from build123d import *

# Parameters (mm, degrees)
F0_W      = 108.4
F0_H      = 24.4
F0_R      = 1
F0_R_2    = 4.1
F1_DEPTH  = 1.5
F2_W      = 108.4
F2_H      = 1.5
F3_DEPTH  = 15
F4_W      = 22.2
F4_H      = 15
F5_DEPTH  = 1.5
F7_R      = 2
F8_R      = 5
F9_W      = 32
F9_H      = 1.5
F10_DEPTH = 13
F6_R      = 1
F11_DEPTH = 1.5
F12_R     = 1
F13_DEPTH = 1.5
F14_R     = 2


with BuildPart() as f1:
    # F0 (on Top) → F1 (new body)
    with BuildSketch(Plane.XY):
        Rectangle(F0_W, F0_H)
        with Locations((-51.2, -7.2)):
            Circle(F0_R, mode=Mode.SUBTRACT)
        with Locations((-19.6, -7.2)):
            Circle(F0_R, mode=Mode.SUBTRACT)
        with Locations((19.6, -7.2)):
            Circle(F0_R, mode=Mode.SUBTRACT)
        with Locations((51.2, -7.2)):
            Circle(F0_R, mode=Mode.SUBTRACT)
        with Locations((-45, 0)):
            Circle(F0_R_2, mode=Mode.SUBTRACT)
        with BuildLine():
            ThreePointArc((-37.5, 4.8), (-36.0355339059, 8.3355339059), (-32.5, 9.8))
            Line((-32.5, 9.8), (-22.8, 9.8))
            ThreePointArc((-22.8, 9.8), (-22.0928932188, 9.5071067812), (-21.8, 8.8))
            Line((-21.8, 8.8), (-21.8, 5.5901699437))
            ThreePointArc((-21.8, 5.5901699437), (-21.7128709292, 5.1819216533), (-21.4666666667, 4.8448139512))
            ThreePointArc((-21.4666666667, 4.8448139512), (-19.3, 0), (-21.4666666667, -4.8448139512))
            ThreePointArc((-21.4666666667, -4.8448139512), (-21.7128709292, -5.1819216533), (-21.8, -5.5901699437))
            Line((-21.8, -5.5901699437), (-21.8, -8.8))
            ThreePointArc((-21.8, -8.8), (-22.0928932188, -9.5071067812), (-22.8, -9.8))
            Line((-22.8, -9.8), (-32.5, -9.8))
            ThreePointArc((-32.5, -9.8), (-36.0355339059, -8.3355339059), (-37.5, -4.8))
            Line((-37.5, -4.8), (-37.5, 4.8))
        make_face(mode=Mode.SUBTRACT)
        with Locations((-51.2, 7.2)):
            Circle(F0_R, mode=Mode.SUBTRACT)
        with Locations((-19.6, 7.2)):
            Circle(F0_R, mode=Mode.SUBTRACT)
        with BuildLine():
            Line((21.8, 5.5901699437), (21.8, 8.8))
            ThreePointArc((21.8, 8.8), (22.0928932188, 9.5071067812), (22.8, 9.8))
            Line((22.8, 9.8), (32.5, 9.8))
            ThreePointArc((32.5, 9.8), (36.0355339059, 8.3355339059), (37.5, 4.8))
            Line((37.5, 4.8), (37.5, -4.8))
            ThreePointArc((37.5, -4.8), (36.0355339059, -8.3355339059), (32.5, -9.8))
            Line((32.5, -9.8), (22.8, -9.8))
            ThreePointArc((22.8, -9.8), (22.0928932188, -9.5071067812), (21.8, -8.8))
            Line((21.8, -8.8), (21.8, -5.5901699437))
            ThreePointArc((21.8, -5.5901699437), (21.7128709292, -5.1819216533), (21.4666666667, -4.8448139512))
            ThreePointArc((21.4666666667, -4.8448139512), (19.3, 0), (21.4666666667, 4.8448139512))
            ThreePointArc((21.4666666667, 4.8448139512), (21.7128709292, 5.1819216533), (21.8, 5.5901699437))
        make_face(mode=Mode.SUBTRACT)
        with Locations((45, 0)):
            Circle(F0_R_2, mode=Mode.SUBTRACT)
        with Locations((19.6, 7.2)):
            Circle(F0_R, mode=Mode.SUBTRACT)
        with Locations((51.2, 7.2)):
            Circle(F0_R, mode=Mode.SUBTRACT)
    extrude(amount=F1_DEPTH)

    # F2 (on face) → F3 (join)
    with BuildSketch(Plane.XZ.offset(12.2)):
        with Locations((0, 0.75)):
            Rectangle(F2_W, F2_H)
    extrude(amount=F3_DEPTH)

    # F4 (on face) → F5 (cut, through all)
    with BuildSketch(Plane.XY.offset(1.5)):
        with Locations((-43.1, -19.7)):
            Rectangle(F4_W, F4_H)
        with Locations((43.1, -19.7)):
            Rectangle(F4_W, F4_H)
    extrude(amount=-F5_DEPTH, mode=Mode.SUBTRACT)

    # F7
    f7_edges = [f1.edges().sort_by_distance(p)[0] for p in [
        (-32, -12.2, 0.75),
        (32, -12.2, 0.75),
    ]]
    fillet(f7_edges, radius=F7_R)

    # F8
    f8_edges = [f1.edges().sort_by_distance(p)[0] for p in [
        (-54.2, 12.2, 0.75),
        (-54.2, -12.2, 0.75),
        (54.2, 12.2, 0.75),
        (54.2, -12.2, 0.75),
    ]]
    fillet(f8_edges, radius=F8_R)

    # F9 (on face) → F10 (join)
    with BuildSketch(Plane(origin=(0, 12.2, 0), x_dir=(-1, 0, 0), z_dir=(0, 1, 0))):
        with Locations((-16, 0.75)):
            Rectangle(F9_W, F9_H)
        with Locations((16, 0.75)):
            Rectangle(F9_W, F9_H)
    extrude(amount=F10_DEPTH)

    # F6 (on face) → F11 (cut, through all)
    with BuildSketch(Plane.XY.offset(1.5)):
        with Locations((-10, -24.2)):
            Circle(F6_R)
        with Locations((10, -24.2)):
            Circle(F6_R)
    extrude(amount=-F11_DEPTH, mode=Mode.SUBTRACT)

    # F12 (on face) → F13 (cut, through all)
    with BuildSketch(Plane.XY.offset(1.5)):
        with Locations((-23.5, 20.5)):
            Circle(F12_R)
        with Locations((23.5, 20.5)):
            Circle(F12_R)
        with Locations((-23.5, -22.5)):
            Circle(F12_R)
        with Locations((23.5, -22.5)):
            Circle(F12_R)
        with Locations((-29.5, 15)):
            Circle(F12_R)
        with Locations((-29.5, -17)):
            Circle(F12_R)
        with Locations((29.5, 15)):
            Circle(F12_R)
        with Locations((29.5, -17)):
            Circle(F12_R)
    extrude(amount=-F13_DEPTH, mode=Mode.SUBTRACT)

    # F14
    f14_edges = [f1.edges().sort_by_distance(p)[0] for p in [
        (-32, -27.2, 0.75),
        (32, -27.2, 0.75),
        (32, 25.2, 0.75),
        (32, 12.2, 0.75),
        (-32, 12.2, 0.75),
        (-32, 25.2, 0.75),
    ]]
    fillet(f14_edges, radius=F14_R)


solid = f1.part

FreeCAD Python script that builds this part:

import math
import FreeCAD as App
import Part
import Sketcher


def edges_at(feature, points):
    """Names of the edges that pass closest to the given points."""
    edges = feature.Shape.Edges
    near = lambda p: min(range(len(edges)), key=lambda i: edges[i].distToShape(Part.Vertex(*p))[0])
    return sorted({f"Edge{near(p) + 1}" for p in points})


def add_polygon(sketch, points):
    """Adds a closed chain of lines whose ends are joined by coincident constraints."""
    first, n = sketch.GeometryCount, len(points)
    for a, b in zip(points, points[1:] + points[:1]):
        sketch.addGeometry(Part.LineSegment(App.Vector(*a, 0), App.Vector(*b, 0)), False)
    for i in range(n):
        sketch.addConstraint(Sketcher.Constraint("Coincident", first + i, 2, first + (i + 1) % n, 1))

doc = App.newDocument("Part")
body = doc.addObject("PartDesign::Body", "Body")

# Sketch on XY plane
sketch1 = body.newObject("Sketcher::SketchObject", "Sketch")
sketch1.AttachmentSupport = (doc.getObject("XY_Plane"), [""])
sketch1.MapMode = "FlatFace"
add_polygon(sketch1, [(-54.2, 12.2), (-54.2, -12.2), (54.2, -12.2), (54.2, 12.2)])  # lines 0-3
sketch1.addGeometry(Part.Circle(App.Vector(-51.2, -7.2, 0), App.Vector(0, 0, 1), 1), False)  # 4
sketch1.addGeometry(Part.Circle(App.Vector(-19.6, -7.2, 0), App.Vector(0, 0, 1), 1), False)  # 5
sketch1.addGeometry(Part.Circle(App.Vector(19.6, -7.2, 0), App.Vector(0, 0, 1), 1), False)  # 6
sketch1.addGeometry(Part.Circle(App.Vector(51.2, -7.2, 0), App.Vector(0, 0, 1), 1), False)  # 7
sketch1.addGeometry(Part.ArcOfCircle(Part.Circle(App.Vector(20.8, 5.59017, 0), App.Vector(0, 0, 1), 1), math.radians(-48.189685), math.radians(0)), False)  # 8
sketch1.addGeometry(Part.LineSegment(App.Vector(21.8, 5.59017, 0), App.Vector(21.8, 8.8, 0)), False)  # 9
sketch1.addGeometry(Part.ArcOfCircle(Part.Circle(App.Vector(22.8, 8.8, 0), App.Vector(0, 0, 1), 1), math.radians(90), math.radians(180)), False)  # 10
sketch1.addGeometry(Part.LineSegment(App.Vector(22.8, 9.8, 0), App.Vector(32.5, 9.8, 0)), False)  # 11
sketch1.addGeometry(Part.ArcOfCircle(Part.Circle(App.Vector(32.5, 4.8, 0), App.Vector(0, 0, 1), 5), math.radians(0), math.radians(90)), False)  # 12
sketch1.addGeometry(Part.LineSegment(App.Vector(37.5, 4.8, 0), App.Vector(37.5, -4.8, 0)), False)  # 13
sketch1.addGeometry(Part.ArcOfCircle(Part.Circle(App.Vector(32.5, -4.8, 0), App.Vector(0, 0, 1), 5), math.radians(-90), math.radians(0)), False)  # 14
sketch1.addGeometry(Part.LineSegment(App.Vector(32.5, -9.8, 0), App.Vector(22.8, -9.8, 0)), False)  # 15
sketch1.addGeometry(Part.ArcOfCircle(Part.Circle(App.Vector(22.8, -8.8, 0), App.Vector(0, 0, 1), 1), math.radians(180), math.radians(270)), False)  # 16
sketch1.addGeometry(Part.LineSegment(App.Vector(21.8, -8.8, 0), App.Vector(21.8, -5.59017, 0)), False)  # 17
sketch1.addGeometry(Part.ArcOfCircle(Part.Circle(App.Vector(20.8, -5.59017, 0), App.Vector(0, 0, 1), 1), math.radians(0), math.radians(48.189685)), False)  # 18
sketch1.addGeometry(Part.ArcOfCircle(Part.Circle(App.Vector(25.8, 0, 0), App.Vector(0, 0, 1), 6.5), math.radians(131.810315), math.radians(228.189685)), False)  # 19
sketch1.addGeometry(Part.Circle(App.Vector(-45, 0, 0), App.Vector(0, 0, 1), 4.1), False)  # 20
sketch1.addGeometry(Part.LineSegment(App.Vector(-37.5, -4.8, 0), App.Vector(-37.5, 4.8, 0)), False)  # 21
sketch1.addGeometry(Part.ArcOfCircle(Part.Circle(App.Vector(-32.5, 4.8, 0), App.Vector(0, 0, 1), 5), math.radians(90), math.radians(180)), False)  # 22
sketch1.addGeometry(Part.LineSegment(App.Vector(-32.5, 9.8, 0), App.Vector(-22.8, 9.8, 0)), False)  # 23
sketch1.addGeometry(Part.ArcOfCircle(Part.Circle(App.Vector(-22.8, 8.8, 0), App.Vector(0, 0, 1), 1), math.radians(0), math.radians(90)), False)  # 24
sketch1.addGeometry(Part.LineSegment(App.Vector(-21.8, 8.8, 0), App.Vector(-21.8, 5.59017, 0)), False)  # 25
sketch1.addGeometry(Part.ArcOfCircle(Part.Circle(App.Vector(-20.8, 5.59017, 0), App.Vector(0, 0, 1), 1), math.radians(180), math.radians(228.189685)), False)  # 26
sketch1.addGeometry(Part.ArcOfCircle(Part.Circle(App.Vector(-25.8, 0, 0), App.Vector(0, 0, 1), 6.5), math.radians(-48.189685), math.radians(48.189685)), False)  # 27
sketch1.addGeometry(Part.ArcOfCircle(Part.Circle(App.Vector(-20.8, -5.59017, 0), App.Vector(0, 0, 1), 1), math.radians(131.810315), math.radians(180)), False)  # 28
sketch1.addGeometry(Part.LineSegment(App.Vector(-21.8, -5.59017, 0), App.Vector(-21.8, -8.8, 0)), False)  # 29
sketch1.addGeometry(Part.ArcOfCircle(Part.Circle(App.Vector(-22.8, -8.8, 0), App.Vector(0, 0, 1), 1), math.radians(-90), math.radians(0)), False)  # 30
sketch1.addGeometry(Part.LineSegment(App.Vector(-22.8, -9.8, 0), App.Vector(-32.5, -9.8, 0)), False)  # 31
sketch1.addGeometry(Part.ArcOfCircle(Part.Circle(App.Vector(-32.5, -4.8, 0), App.Vector(0, 0, 1), 5), math.radians(180), math.radians(270)), False)  # 32
sketch1.addGeometry(Part.Circle(App.Vector(-51.2, 7.2, 0), App.Vector(0, 0, 1), 1), False)  # 33
sketch1.addGeometry(Part.Circle(App.Vector(-19.6, 7.2, 0), App.Vector(0, 0, 1), 1), False)  # 34
sketch1.addGeometry(Part.Circle(App.Vector(45, 0, 0), App.Vector(0, 0, 1), 4.1), False)  # 35
sketch1.addGeometry(Part.Circle(App.Vector(19.6, 7.2, 0), App.Vector(0, 0, 1), 1), False)  # 36
sketch1.addGeometry(Part.Circle(App.Vector(51.2, 7.2, 0), App.Vector(0, 0, 1), 1), False)  # 37
sketch1.addConstraint([
    Sketcher.Constraint("Tangent", 8, 2, 9, 1),
    Sketcher.Constraint("Tangent", 9, 2, 10, 2),
    Sketcher.Constraint("Tangent", 10, 1, 11, 1),
    Sketcher.Constraint("Tangent", 11, 2, 12, 2),
    Sketcher.Constraint("Tangent", 12, 1, 13, 1),
    Sketcher.Constraint("Tangent", 13, 2, 14, 2),
    Sketcher.Constraint("Tangent", 14, 1, 15, 1),
    Sketcher.Constraint("Tangent", 15, 2, 16, 2),
    Sketcher.Constraint("Tangent", 16, 1, 17, 1),
    Sketcher.Constraint("Tangent", 17, 2, 18, 1),
    Sketcher.Constraint("Tangent", 18, 2, 19, 2),
    Sketcher.Constraint("Tangent", 19, 1, 8, 1),
    Sketcher.Constraint("Tangent", 21, 2, 22, 2),
    Sketcher.Constraint("Tangent", 22, 1, 23, 1),
    Sketcher.Constraint("Tangent", 23, 2, 24, 2),
    Sketcher.Constraint("Tangent", 24, 1, 25, 1),
    Sketcher.Constraint("Tangent", 25, 2, 26, 1),
    Sketcher.Constraint("Tangent", 26, 2, 27, 2),
    Sketcher.Constraint("Tangent", 27, 1, 28, 1),
    Sketcher.Constraint("Tangent", 28, 2, 29, 1),
    Sketcher.Constraint("Tangent", 29, 2, 30, 2),
    Sketcher.Constraint("Tangent", 30, 1, 31, 1),
    Sketcher.Constraint("Tangent", 31, 2, 32, 2),
    Sketcher.Constraint("Tangent", 32, 1, 21, 1),
    Sketcher.Constraint("Vertical", 0),
    Sketcher.Constraint("Horizontal", 1),
    Sketcher.Constraint("Vertical", 2),
    Sketcher.Constraint("Horizontal", 3),
    Sketcher.Constraint("Vertical", 9),
    Sketcher.Constraint("Horizontal", 11),
    Sketcher.Constraint("Vertical", 13),
    Sketcher.Constraint("Horizontal", 15),
    Sketcher.Constraint("Vertical", 17),
    Sketcher.Constraint("Vertical", 21),
    Sketcher.Constraint("Horizontal", 23),
    Sketcher.Constraint("Vertical", 25),
    Sketcher.Constraint("Vertical", 29),
    Sketcher.Constraint("Horizontal", 31),
    Sketcher.Constraint("Equal", 4, 5),
    Sketcher.Constraint("Equal", 5, 6),
    Sketcher.Constraint("Equal", 6, 7),
    Sketcher.Constraint("Equal", 7, 8),
    Sketcher.Constraint("Equal", 8, 10),
    Sketcher.Constraint("Equal", 12, 14),
    Sketcher.Constraint("Equal", 10, 16),
    Sketcher.Constraint("Equal", 16, 18),
    Sketcher.Constraint("Equal", 14, 22),
    Sketcher.Constraint("Equal", 18, 24),
    Sketcher.Constraint("Equal", 24, 26),
    Sketcher.Constraint("Equal", 19, 27),
    Sketcher.Constraint("Equal", 26, 28),
    Sketcher.Constraint("Equal", 28, 30),
    Sketcher.Constraint("Equal", 22, 32),
    Sketcher.Constraint("Equal", 30, 33),
    Sketcher.Constraint("Equal", 33, 34),
    Sketcher.Constraint("Equal", 20, 35),
    Sketcher.Constraint("Equal", 34, 36),
    Sketcher.Constraint("Equal", 36, 37),
    Sketcher.Constraint("Symmetric", 14, 3, 22, 3, -1, 1),
    Sketcher.Constraint("Symmetric", 18, 3, 26, 3, -1, 1),
    Sketcher.Constraint("Symmetric", 8, 3, 28, 3, -1, 1),
    Sketcher.Constraint("Symmetric", 7, 3, 33, 3, -1, 1),
    Sketcher.Constraint("Symmetric", 6, 3, 34, 3, -1, 1),
    Sketcher.Constraint("Symmetric", 20, 3, 35, 3, -1, 1),
    Sketcher.Constraint("Symmetric", 5, 3, 36, 3, -1, 1),
    Sketcher.Constraint("Symmetric", 4, 3, 37, 3, -1, 1),
    Sketcher.Constraint("Symmetric", 0, 2, 2, 2, -1, 1),
    Sketcher.Constraint("Symmetric", 5, 3, 6, 3, -2),
    Sketcher.Constraint("Symmetric", 4, 3, 7, 3, -2),
    Sketcher.Constraint("Symmetric", 10, 3, 24, 3, -2),
    Sketcher.Constraint("PointOnObject", 19, 3, -1),
    Sketcher.Constraint("PointOnObject", 20, 3, -1),
    Sketcher.Constraint("Horizontal", 4, 3, 5, 3),
    Sketcher.Constraint("Horizontal", 16, 3, 30, 3),
    Sketcher.Constraint("Diameter", 4, 2.0),
    Sketcher.Constraint("Radius", 12, 5.0),
    Sketcher.Constraint("Diameter", 20, 8.2),
    Sketcher.Constraint("Radius", 19, 6.5),
    Sketcher.Constraint("DistanceX", 1, 1, 1, 2, 108.4),
    Sketcher.Constraint("DistanceX", 11, 1, 11, 2, 9.7),
    Sketcher.Constraint("DistanceY", 0, 2, 0, 1, 24.4),
    Sketcher.Constraint("DistanceY", 13, 2, 13, 1, 9.6),
    Sketcher.Constraint("DistanceX", 20, 3, -1, 1, 45.0),
    Sketcher.Constraint("DistanceX", 4, 3, 8, 3, 72.0),
    Sketcher.Constraint("DistanceY", 6, 3, 10, 3, 16.0),
    Sketcher.Constraint("DistanceX", 8, 3, 19, 3, 5.0),
    Sketcher.Constraint("DistanceX", 0, 2, 4, 3, 3.0),
    Sketcher.Constraint("DistanceX", 5, 3, -1, 1, 19.6),
])
pad1 = body.newObject("PartDesign::Pad", "Pad")
pad1.Profile = sketch1
pad1.Length = 1.5

# Sketch on XZ plane
sketch2 = body.newObject("Sketcher::SketchObject", "Sketch001")
sketch2.AttachmentSupport = (doc.getObject("XZ_Plane"), [""])
sketch2.MapMode = "FlatFace"
sketch2.AttachmentOffset = App.Placement(App.Vector(0, 0, 12.2), App.Rotation())
add_polygon(sketch2, [(-54.2, 1.5), (-54.2, 0), (54.2, 0), (54.2, 1.5)])  # lines 0-3
sketch2.addConstraint([
    Sketcher.Constraint("Vertical", 0),
    Sketcher.Constraint("Horizontal", 1),
    Sketcher.Constraint("Vertical", 2),
    Sketcher.Constraint("Horizontal", 3),
    Sketcher.Constraint("Symmetric", 0, 2, 1, 2, -1, 1),
    Sketcher.Constraint("DistanceX", 1, 1, 1, 2, 108.4),
    Sketcher.Constraint("DistanceY", 0, 2, 0, 1, 1.5),
])
pad2 = body.newObject("PartDesign::Pad", "Pad001")
pad2.Profile = sketch2
pad2.Length = 15

# Sketch on XY plane
sketch3 = body.newObject("Sketcher::SketchObject", "Sketch002")
sketch3.AttachmentSupport = (doc.getObject("XY_Plane"), [""])
sketch3.MapMode = "FlatFace"
sketch3.AttachmentOffset = App.Placement(App.Vector(0, 0, 1.5), App.Rotation())
add_polygon(sketch3, [(-54.2, -12.2), (-54.2, -27.2), (-32, -27.2), (-32, -12.2)])  # lines 0-3
add_polygon(sketch3, [(32, -12.2), (32, -27.2), (54.2, -27.2), (54.2, -12.2)])  # lines 4-7
sketch3.addConstraint([
    Sketcher.Constraint("Vertical", 0),
    Sketcher.Constraint("Horizontal", 1),
    Sketcher.Constraint("Vertical", 2),
    Sketcher.Constraint("Horizontal", 3),
    Sketcher.Constraint("Vertical", 4),
    Sketcher.Constraint("Horizontal", 5),
    Sketcher.Constraint("Vertical", 6),
    Sketcher.Constraint("Horizontal", 7),
    Sketcher.Constraint("Symmetric", 1, 2, 4, 2, -2),
    Sketcher.Constraint("Symmetric", 3, 2, 6, 2, -2),
    Sketcher.Constraint("DistanceY", 0, 2, 0, 1, 15.0),
    Sketcher.Constraint("DistanceX", 1, 1, 1, 2, 22.2),
    Sketcher.Constraint("DistanceX", 1, 2, -1, 1, 32.0),
    Sketcher.Constraint("DistanceY", 0, 2, -1, 1, 27.2),
])
pocket1 = body.newObject("PartDesign::Pocket", "Pocket")
pocket1.Profile = sketch3
pocket1.Type = "ThroughAll"
doc.recompute()

fillet = body.newObject("PartDesign::Fillet", "Fillet")
fillet.Base = (pocket1, edges_at(pocket1, [(-32, -12.2, 0.75), (32, -12.2, 0.75)]))
fillet.Radius = 2
doc.recompute()

fillet2 = body.newObject("PartDesign::Fillet", "Fillet001")
fillet2.Base = (fillet, edges_at(fillet, [
    (-54.2, 12.2, 0.75),
    (-54.2, -12.2, 0.75),
    (54.2, 12.2, 0.75),
    (54.2, -12.2, 0.75),
]))
fillet2.Radius = 5

# Sketch on XZ plane
sketch4 = body.newObject("Sketcher::SketchObject", "Sketch003")
sketch4.AttachmentSupport = (doc.getObject("XZ_Plane"), [""])
sketch4.MapMode = "FlatFace"
sketch4.AttachmentOffset = App.Placement(App.Vector(0, 0, -12.2), App.Rotation())
add_polygon(sketch4, [(32, 1.5), (32, 0), (-32, 0), (-32, 1.5)])  # lines 0-3
sketch4.addConstraint([
    Sketcher.Constraint("Vertical", 0),
    Sketcher.Constraint("Horizontal", 1),
    Sketcher.Constraint("Vertical", 2),
    Sketcher.Constraint("Horizontal", 3),
    Sketcher.Constraint("Symmetric", 0, 2, 1, 2, -1, 1),
    Sketcher.Constraint("DistanceX", 1, 2, 1, 1, 64.0),
    Sketcher.Constraint("DistanceY", 0, 2, 0, 1, 1.5),
])
pad3 = body.newObject("PartDesign::Pad", "Pad002")
pad3.Profile = sketch4
pad3.Length = 13
pad3.Reversed = True

# Sketch on XY plane
sketch5 = body.newObject("Sketcher::SketchObject", "Sketch004")
sketch5.AttachmentSupport = (doc.getObject("XY_Plane"), [""])
sketch5.MapMode = "FlatFace"
sketch5.AttachmentOffset = App.Placement(App.Vector(0, 0, 1.5), App.Rotation())
sketch5.addGeometry([
    Part.Circle(App.Vector(-10, -24.2, 0), App.Vector(0, 0, 1), 1),
    Part.Circle(App.Vector(10, -24.2, 0), App.Vector(0, 0, 1), 1),
], False)
sketch5.addConstraint([
    Sketcher.Constraint("Equal", 0, 1),
    Sketcher.Constraint("Symmetric", 0, 3, 1, 3, -2),
    Sketcher.Constraint("Diameter", 0, 2.0),
    Sketcher.Constraint("DistanceX", 0, 3, -1, 1, 10.0),
    Sketcher.Constraint("DistanceY", 0, 3, -1, 1, 24.2),
])
pocket2 = body.newObject("PartDesign::Pocket", "Pocket001")
pocket2.Profile = sketch5
pocket2.Type = "ThroughAll"

# Sketch on XY plane
sketch6 = body.newObject("Sketcher::SketchObject", "Sketch005")
sketch6.AttachmentSupport = (doc.getObject("XY_Plane"), [""])
sketch6.MapMode = "FlatFace"
sketch6.AttachmentOffset = App.Placement(App.Vector(0, 0, 1.5), App.Rotation())
sketch6.addGeometry([
    Part.Circle(App.Vector(-23.5, 20.5, 0), App.Vector(0, 0, 1), 1),  # 0
    Part.Circle(App.Vector(23.5, 20.5, 0), App.Vector(0, 0, 1), 1),  # 1
    Part.Circle(App.Vector(-23.5, -22.5, 0), App.Vector(0, 0, 1), 1),  # 2
    Part.Circle(App.Vector(23.5, -22.5, 0), App.Vector(0, 0, 1), 1),  # 3
    Part.Circle(App.Vector(-29.5, 15, 0), App.Vector(0, 0, 1), 1),  # 4
    Part.Circle(App.Vector(-29.5, -17, 0), App.Vector(0, 0, 1), 1),  # 5
    Part.Circle(App.Vector(29.5, 15, 0), App.Vector(0, 0, 1), 1),  # 6
    Part.Circle(App.Vector(29.5, -17, 0), App.Vector(0, 0, 1), 1),  # 7
], False)
sketch6.addConstraint([
    Sketcher.Constraint("Equal", 0, 1),
    Sketcher.Constraint("Equal", 1, 2),
    Sketcher.Constraint("Equal", 2, 3),
    Sketcher.Constraint("Equal", 3, 4),
    Sketcher.Constraint("Equal", 4, 5),
    Sketcher.Constraint("Equal", 5, 6),
    Sketcher.Constraint("Equal", 6, 7),
    Sketcher.Constraint("Symmetric", 0, 3, 1, 3, -2),
    Sketcher.Constraint("Symmetric", 2, 3, 3, 3, -2),
    Sketcher.Constraint("Symmetric", 4, 3, 6, 3, -2),
    Sketcher.Constraint("Symmetric", 5, 3, 7, 3, -2),
    Sketcher.Constraint("Vertical", 0, 3, 2, 3),
    Sketcher.Constraint("Vertical", 4, 3, 5, 3),
    Sketcher.Constraint("Diameter", 0, 2.0),
    Sketcher.Constraint("DistanceY", -1, 1, 4, 3, 15.0),
    Sketcher.Constraint("DistanceY", 5, 3, -1, 1, 17.0),
    Sketcher.Constraint("DistanceX", 0, 3, 1, 3, 47.0),
    Sketcher.Constraint("DistanceY", 2, 3, 0, 3, 43.0),
    Sketcher.Constraint("DistanceX", 4, 3, 0, 3, 6.0),
    Sketcher.Constraint("DistanceY", -1, 1, 0, 3, 20.5),
])
pocket3 = body.newObject("PartDesign::Pocket", "Pocket002")
pocket3.Profile = sketch6
pocket3.Type = "ThroughAll"
doc.recompute()

fillet3 = body.newObject("PartDesign::Fillet", "Fillet002")
fillet3.Base = (pocket3, edges_at(pocket3, [
    (-32, -27.2, 0.75),
    (32, -27.2, 0.75),
    (32, 25.2, 0.75),
    (32, 12.2, 0.75),
    (-32, 12.2, 0.75),
    (-32, 25.2, 0.75),
]))
fillet3.Radius = 2

doc.recompute()
